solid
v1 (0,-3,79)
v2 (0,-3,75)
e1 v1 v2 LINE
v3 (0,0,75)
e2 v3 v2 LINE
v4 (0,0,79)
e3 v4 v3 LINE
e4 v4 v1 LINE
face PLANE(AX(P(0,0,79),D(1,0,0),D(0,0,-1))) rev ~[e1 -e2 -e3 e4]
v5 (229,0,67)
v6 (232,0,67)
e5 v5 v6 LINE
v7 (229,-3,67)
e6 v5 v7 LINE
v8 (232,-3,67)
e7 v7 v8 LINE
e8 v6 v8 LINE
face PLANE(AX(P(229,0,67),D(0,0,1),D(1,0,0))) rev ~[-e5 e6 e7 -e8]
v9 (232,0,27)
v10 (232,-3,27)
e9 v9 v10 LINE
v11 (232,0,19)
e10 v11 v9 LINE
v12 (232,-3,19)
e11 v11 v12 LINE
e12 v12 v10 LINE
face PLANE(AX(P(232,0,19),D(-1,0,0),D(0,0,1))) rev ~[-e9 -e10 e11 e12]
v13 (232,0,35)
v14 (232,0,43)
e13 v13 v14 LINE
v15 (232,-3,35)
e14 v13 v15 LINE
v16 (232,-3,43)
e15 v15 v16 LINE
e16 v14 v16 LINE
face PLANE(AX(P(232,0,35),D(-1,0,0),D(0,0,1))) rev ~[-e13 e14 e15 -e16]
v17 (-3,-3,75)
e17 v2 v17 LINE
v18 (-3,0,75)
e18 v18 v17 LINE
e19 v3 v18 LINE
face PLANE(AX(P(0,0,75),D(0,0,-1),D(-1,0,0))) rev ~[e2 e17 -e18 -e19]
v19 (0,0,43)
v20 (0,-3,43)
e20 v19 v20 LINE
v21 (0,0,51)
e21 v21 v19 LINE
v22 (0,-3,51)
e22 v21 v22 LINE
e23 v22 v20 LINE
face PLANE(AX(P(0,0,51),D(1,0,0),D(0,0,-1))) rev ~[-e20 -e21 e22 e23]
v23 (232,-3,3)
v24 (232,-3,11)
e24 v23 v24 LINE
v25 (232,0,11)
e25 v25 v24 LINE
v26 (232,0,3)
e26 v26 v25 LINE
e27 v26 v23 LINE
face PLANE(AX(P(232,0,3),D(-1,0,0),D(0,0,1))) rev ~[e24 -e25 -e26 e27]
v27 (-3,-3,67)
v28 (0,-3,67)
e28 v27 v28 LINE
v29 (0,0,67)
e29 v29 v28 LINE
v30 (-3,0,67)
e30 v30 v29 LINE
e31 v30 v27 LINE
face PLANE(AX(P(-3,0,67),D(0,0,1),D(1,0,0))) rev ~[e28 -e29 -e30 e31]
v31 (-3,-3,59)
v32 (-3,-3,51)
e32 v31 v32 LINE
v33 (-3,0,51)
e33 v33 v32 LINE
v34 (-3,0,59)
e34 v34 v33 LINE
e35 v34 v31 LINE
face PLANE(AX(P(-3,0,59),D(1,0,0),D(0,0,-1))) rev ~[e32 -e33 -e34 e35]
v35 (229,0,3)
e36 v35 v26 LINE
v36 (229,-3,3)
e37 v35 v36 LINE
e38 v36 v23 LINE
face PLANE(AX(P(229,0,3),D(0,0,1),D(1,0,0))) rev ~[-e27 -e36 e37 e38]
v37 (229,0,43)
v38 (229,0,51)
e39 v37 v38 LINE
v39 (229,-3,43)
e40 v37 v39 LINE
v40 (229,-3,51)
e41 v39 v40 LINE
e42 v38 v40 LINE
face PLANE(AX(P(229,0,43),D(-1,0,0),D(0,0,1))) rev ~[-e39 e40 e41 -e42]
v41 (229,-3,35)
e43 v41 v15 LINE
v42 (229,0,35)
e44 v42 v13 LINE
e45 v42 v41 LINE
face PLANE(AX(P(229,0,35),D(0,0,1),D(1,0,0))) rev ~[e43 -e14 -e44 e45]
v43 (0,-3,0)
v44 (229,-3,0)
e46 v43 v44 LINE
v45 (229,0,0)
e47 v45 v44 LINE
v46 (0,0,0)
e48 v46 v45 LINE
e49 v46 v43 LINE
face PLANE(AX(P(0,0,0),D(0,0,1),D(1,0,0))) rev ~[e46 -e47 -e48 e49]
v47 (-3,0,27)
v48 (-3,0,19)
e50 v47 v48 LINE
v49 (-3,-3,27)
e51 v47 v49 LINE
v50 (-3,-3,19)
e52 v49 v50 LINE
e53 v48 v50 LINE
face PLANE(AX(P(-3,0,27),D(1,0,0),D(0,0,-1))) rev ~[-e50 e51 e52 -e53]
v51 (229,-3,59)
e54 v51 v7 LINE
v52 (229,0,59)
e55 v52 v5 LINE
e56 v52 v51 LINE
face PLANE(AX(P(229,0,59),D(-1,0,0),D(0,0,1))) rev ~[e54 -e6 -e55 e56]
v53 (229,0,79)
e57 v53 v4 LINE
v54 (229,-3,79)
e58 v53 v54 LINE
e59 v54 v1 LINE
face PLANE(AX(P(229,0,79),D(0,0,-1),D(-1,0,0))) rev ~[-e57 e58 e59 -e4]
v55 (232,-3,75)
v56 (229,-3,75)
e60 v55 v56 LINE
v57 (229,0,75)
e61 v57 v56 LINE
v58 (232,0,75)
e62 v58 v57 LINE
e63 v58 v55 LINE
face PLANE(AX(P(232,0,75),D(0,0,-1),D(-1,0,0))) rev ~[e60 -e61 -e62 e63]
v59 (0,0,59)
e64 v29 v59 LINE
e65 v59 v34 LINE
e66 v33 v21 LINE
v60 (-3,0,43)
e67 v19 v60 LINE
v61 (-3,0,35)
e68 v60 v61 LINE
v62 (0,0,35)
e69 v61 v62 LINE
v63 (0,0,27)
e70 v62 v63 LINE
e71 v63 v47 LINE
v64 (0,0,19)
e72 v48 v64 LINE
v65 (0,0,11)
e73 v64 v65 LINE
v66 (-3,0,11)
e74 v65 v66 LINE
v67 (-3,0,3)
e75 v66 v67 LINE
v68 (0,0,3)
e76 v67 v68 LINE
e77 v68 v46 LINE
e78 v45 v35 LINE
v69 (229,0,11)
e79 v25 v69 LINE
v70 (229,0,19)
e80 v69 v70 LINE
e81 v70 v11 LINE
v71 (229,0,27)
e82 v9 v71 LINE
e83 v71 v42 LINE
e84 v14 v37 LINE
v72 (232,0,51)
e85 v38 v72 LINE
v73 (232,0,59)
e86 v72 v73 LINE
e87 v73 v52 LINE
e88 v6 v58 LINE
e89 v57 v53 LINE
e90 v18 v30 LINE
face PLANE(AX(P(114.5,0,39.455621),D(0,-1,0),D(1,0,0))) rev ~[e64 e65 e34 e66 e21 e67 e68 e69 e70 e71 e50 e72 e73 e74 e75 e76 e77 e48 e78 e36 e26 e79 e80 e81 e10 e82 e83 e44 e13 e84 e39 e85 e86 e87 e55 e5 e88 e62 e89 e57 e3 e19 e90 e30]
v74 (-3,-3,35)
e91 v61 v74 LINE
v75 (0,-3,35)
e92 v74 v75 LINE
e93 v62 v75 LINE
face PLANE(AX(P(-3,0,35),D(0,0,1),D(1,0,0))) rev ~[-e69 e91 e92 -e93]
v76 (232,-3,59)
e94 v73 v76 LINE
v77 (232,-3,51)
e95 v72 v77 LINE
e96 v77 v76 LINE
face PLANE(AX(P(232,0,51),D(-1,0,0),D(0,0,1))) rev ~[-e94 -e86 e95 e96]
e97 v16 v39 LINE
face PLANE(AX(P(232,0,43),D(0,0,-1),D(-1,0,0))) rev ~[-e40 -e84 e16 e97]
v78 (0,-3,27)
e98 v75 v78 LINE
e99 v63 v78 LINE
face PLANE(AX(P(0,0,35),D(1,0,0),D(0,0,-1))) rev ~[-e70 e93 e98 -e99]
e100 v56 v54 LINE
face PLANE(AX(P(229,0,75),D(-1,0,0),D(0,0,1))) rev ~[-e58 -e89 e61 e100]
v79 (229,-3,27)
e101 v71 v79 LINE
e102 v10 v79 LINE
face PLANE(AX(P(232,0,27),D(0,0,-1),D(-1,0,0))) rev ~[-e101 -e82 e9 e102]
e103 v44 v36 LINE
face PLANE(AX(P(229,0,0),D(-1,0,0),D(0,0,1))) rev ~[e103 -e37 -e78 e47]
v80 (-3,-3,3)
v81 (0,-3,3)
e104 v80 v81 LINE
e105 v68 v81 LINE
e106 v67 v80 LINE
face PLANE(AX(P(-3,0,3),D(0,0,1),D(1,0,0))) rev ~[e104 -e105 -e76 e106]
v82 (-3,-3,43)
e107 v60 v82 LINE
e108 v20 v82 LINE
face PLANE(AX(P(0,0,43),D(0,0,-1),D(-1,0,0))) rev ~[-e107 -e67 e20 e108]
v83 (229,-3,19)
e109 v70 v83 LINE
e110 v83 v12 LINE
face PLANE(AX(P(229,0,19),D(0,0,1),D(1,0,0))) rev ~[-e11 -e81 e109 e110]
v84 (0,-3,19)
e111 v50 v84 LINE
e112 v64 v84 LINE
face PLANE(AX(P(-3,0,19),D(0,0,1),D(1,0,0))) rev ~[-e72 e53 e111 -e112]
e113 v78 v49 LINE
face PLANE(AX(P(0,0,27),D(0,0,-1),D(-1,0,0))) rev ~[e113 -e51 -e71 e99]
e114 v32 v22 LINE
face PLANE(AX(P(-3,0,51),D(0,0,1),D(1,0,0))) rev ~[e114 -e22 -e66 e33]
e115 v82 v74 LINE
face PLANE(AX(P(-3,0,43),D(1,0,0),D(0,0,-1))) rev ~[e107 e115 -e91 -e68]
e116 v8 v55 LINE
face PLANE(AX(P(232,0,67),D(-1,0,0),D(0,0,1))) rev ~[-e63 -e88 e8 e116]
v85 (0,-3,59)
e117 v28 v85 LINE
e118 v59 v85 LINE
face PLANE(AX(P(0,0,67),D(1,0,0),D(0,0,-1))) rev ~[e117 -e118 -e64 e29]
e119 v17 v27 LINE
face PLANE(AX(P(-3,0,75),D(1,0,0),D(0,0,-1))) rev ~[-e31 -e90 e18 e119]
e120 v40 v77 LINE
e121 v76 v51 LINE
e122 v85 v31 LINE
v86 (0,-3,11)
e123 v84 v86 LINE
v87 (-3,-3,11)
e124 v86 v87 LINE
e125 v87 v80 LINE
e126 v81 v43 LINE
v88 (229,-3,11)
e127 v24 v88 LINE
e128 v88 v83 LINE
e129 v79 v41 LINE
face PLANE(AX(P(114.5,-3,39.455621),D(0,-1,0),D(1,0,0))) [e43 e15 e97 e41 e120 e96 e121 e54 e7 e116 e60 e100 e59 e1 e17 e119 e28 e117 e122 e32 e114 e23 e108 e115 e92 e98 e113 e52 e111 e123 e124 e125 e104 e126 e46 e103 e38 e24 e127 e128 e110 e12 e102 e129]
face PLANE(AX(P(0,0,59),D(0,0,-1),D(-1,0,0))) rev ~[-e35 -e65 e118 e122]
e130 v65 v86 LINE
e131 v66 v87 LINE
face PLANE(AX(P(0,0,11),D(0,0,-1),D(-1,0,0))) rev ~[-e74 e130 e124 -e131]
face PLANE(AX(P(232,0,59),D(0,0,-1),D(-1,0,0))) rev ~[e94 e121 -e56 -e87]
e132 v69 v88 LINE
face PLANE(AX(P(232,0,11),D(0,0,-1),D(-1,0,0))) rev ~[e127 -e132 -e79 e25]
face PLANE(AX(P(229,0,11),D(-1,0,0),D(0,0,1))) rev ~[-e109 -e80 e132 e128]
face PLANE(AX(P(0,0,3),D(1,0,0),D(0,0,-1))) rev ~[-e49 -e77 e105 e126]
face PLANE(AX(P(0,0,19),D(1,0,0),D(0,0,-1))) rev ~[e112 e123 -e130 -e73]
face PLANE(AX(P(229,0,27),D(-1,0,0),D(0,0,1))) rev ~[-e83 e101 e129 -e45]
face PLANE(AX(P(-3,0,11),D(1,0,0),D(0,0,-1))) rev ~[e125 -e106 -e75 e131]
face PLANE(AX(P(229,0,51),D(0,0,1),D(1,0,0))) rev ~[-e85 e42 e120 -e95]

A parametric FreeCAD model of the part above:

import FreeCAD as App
import Part
import Sketcher

V = App.Vector
Q = App.Units.Quantity

doc = App.newDocument("Part")
body = doc.addObject("PartDesign::Body", "Body")

# Sketch on XZ plane
sketch1 = body.newObject("Sketcher::SketchObject", "Sketch")
sketch1.AttachmentSupport = (doc.getObject("XZ_Plane"), [""])
sketch1.MapMode = "FlatFace"
sketch1.addGeometry([
    Part.LineSegment(V(0, 3, 0), V(0, 0, 0)),  # 0
    Part.LineSegment(V(0, 0, 0), V(229, 0, 0)),  # 1
    Part.LineSegment(V(229, 0, 0), V(229, 3, 0)),  # 2
    Part.LineSegment(V(229, 3, 0), V(232, 3, 0)),  # 3
    Part.LineSegment(V(232, 3, 0), V(232, 11, 0)),  # 4
    Part.LineSegment(V(232, 11, 0), V(229, 11, 0)),  # 5
    Part.LineSegment(V(229, 11, 0), V(229, 19, 0)),  # 6
    Part.LineSegment(V(229, 19, 0), V(232, 19, 0)),  # 7
    Part.LineSegment(V(232, 19, 0), V(232, 27, 0)),  # 8
    Part.LineSegment(V(232, 27, 0), V(229, 27, 0)),  # 9
    Part.LineSegment(V(229, 27, 0), V(229, 35, 0)),  # 10
    Part.LineSegment(V(229, 35, 0), V(232, 35, 0)),  # 11
    Part.LineSegment(V(232, 35, 0), V(232, 43, 0)),  # 12
    Part.LineSegment(V(232, 43, 0), V(229, 43, 0)),  # 13
    Part.LineSegment(V(229, 43, 0), V(229, 51, 0)),  # 14
    Part.LineSegment(V(229, 51, 0), V(232, 51, 0)),  # 15
    Part.LineSegment(V(232, 51, 0), V(232, 59, 0)),  # 16
    Part.LineSegment(V(232, 59, 0), V(229, 59, 0)),  # 17
    Part.LineSegment(V(229, 59, 0), V(229, 67, 0)),  # 18
    Part.LineSegment(V(229, 67, 0), V(232, 67, 0)),  # 19
    Part.LineSegment(V(232, 67, 0), V(232, 75, 0)),  # 20
    Part.LineSegment(V(232, 75, 0), V(229, 75, 0)),  # 21
    Part.LineSegment(V(229, 75, 0), V(229, 79, 0)),  # 22
    Part.LineSegment(V(229, 79, 0), V(0, 79, 0)),  # 23
    Part.LineSegment(V(0, 79, 0), V(0, 75, 0)),  # 24
    Part.LineSegment(V(0, 75, 0), V(-3, 75, 0)),  # 25
    Part.LineSegment(V(-3, 75, 0), V(-3, 67, 0)),  # 26
    Part.LineSegment(V(-3, 67, 0), V(0, 67, 0)),  # 27
    Part.LineSegment(V(0, 67, 0), V(0, 59, 0)),  # 28
    Part.LineSegment(V(0, 59, 0), V(-3, 59, 0)),  # 29
    Part.LineSegment(V(-3, 59, 0), V(-3, 51, 0)),  # 30
    Part.LineSegment(V(-3, 51, 0), V(0, 51, 0)),  # 31
    Part.LineSegment(V(0, 51, 0), V(0, 43, 0)),  # 32
    Part.LineSegment(V(0, 43, 0), V(-3, 43, 0)),  # 33
    Part.LineSegment(V(-3, 43, 0), V(-3, 35, 0)),  # 34
    Part.LineSegment(V(-3, 35, 0), V(0, 35, 0)),  # 35
    Part.LineSegment(V(0, 35, 0), V(0, 27, 0)),  # 36
    Part.LineSegment(V(0, 27, 0), V(-3, 27, 0)),  # 37
    Part.LineSegment(V(-3, 27, 0), V(-3, 19, 0)),  # 38
    Part.LineSegment(V(-3, 19, 0), V(0, 19, 0)),  # 39
    Part.LineSegment(V(0, 19, 0), V(0, 11, 0)),  # 40
    Part.LineSegment(V(0, 11, 0), V(-3, 11, 0)),  # 41
    Part.LineSegment(V(-3, 11, 0), V(-3, 3, 0)),  # 42
    Part.LineSegment(V(-3, 3, 0), V(0, 3, 0)),  # 43
], False)
sketch1.addConstraint([
    Sketcher.Constraint("Coincident", 0, 2, 1, 1),
    Sketcher.Constraint("Coincident", 1, 2, 2, 1),
    Sketcher.Constraint("Coincident", 2, 2, 3, 1),
    Sketcher.Constraint("Coincident", 3, 2, 4, 1),
    Sketcher.Constraint("Coincident", 4, 2, 5, 1),
    Sketcher.Constraint("Coincident", 5, 2, 6, 1),
    Sketcher.Constraint("Coincident", 6, 2, 7, 1),
    Sketcher.Constraint("Coincident", 7, 2, 8, 1),
    Sketcher.Constraint("Coincident", 8, 2, 9, 1),
    Sketcher.Constraint("Coincident", 9, 2, 10, 1),
    Sketcher.Constraint("Coincident", 10, 2, 11, 1),
    Sketcher.Constraint("Coincident", 11, 2, 12, 1),
    Sketcher.Constraint("Coincident", 12, 2, 13, 1),
    Sketcher.Constraint("Coincident", 13, 2, 14, 1),
    Sketcher.Constraint("Coincident", 14, 2, 15, 1),
    Sketcher.Constraint("Coincident", 15, 2, 16, 1),
    Sketcher.Constraint("Coincident", 16, 2, 17, 1),
    Sketcher.Constraint("Coincident", 17, 2, 18, 1),
    Sketcher.Constraint("Coincident", 18, 2, 19, 1),
    Sketcher.Constraint("Coincident", 19, 2, 20, 1),
    Sketcher.Constraint("Coincident", 20, 2, 21, 1),
    Sketcher.Constraint("Coincident", 21, 2, 22, 1),
    Sketcher.Constraint("Coincident", 22, 2, 23, 1),
    Sketcher.Constraint("Coincident", 23, 2, 24, 1),
    Sketcher.Constraint("Coincident", 24, 2, 25, 1),
    Sketcher.Constraint("Coincident", 25, 2, 26, 1),
    Sketcher.Constraint("Coincident", 26, 2, 27, 1),
    Sketcher.Constraint("Coincident", 27, 2, 28, 1),
    Sketcher.Constraint("Coincident", 28, 2, 29, 1),
    Sketcher.Constraint("Coincident", 29, 2, 30, 1),
    Sketcher.Constraint("Coincident", 30, 2, 31, 1),
    Sketcher.Constraint("Coincident", 31, 2, 32, 1),
    Sketcher.Constraint("Coincident", 32, 2, 33, 1),
    Sketcher.Constraint("Coincident", 33, 2, 34, 1),
    Sketcher.Constraint("Coincident", 34, 2, 35, 1),
    Sketcher.Constraint("Coincident", 35, 2, 36, 1),
    Sketcher.Constraint("Coincident", 36, 2, 37, 1),
    Sketcher.Constraint("Coincident", 37, 2, 38, 1),
    Sketcher.Constraint("Coincident", 38, 2, 39, 1),
    Sketcher.Constraint("Coincident", 39, 2, 40, 1),
    Sketcher.Constraint("Coincident", 40, 2, 41, 1),
    Sketcher.Constraint("Coincident", 41, 2, 42, 1),
    Sketcher.Constraint("Coincident", 42, 2, 43, 1),
    Sketcher.Constraint("Coincident", 43, 2, 0, 1),
    Sketcher.Constraint("Vertical", 0),
    Sketcher.Constraint("Horizontal", 1),
    Sketcher.Constraint("Vertical", 2),
    Sketcher.Constraint("Horizontal", 3),
    Sketcher.Constraint("Vertical", 4),
    Sketcher.Constraint("Horizontal", 5),
    Sketcher.Constraint("Vertical", 6),
    Sketcher.Constraint("Horizontal", 7),
    Sketcher.Constraint("Vertical", 8),
    Sketcher.Constraint("Horizontal", 9),
    Sketcher.Constraint("Vertical", 10),
    Sketcher.Constraint("Horizontal", 11),
    Sketcher.Constraint("Vertical", 12),
    Sketcher.Constraint("Horizontal", 13),
    Sketcher.Constraint("Vertical", 14),
    Sketcher.Constraint("Horizontal", 15),
    Sketcher.Constraint("Vertical", 16),
    Sketcher.Constraint("Horizontal", 17),
    Sketcher.Constraint("Vertical", 18),
    Sketcher.Constraint("Horizontal", 19),
    Sketcher.Constraint("Vertical", 20),
    Sketcher.Constraint("Horizontal", 21),
    Sketcher.Constraint("Vertical", 22),
    Sketcher.Constraint("Horizontal", 23),
    Sketcher.Constraint("Vertical", 24),
    Sketcher.Constraint("Horizontal", 25),
    Sketcher.Constraint("Vertical", 26),
    Sketcher.Constraint("Horizontal", 27),
    Sketcher.Constraint("Vertical", 28),
    Sketcher.Constraint("Horizontal", 29),
    Sketcher.Constraint("Vertical", 30),
    Sketcher.Constraint("Horizontal", 31),
    Sketcher.Constraint("Vertical", 32),
    Sketcher.Constraint("Horizontal", 33),
    Sketcher.Constraint("Vertical", 34),
    Sketcher.Constraint("Horizontal", 35),
    Sketcher.Constraint("Vertical", 36),
    Sketcher.Constraint("Horizontal", 37),
    Sketcher.Constraint("Vertical", 38),
    Sketcher.Constraint("Horizontal", 39),
    Sketcher.Constraint("Vertical", 40),
    Sketcher.Constraint("Horizontal", 41),
    Sketcher.Constraint("Vertical", 42),
    Sketcher.Constraint("Horizontal", 43),
    Sketcher.Constraint("Coincident", 0, 2, -1, 1),
    Sketcher.Constraint("PointOnObject", 23, 2, -2),
    Sketcher.Constraint("PointOnObject", 27, 2, -2),
    Sketcher.Constraint("PointOnObject", 31, 2, -2),
    Sketcher.Constraint("PointOnObject", 35, 2, -2),
    Sketcher.Constraint("PointOnObject", 39, 2, -2),
    Sketcher.Constraint("Horizontal", 21, 2, 24, 2),
    Sketcher.Constraint("Horizontal", 19, 2, 26, 2),
    Sketcher.Constraint("Horizontal", 17, 2, 28, 2),
    Sketcher.Constraint("Horizontal", 15, 2, 30, 2),
    Sketcher.Constraint("Horizontal", 13, 2, 32, 2),
    Sketcher.Constraint("Horizontal", 11, 2, 34, 2),
    Sketcher.Constraint("Horizontal", 9, 2, 36, 2),
    Sketcher.Constraint("Horizontal", 7, 2, 38, 2),
    Sketcher.Constraint("Horizontal", 5, 2, 40, 2),
    Sketcher.Constraint("Horizontal", 3, 2, 42, 2),
    Sketcher.Constraint("Vertical", 2, 2, 5, 2),
    Sketcher.Constraint("Vertical", 4, 2, 7, 2),
    Sketcher.Constraint("Vertical", 6, 2, 9, 2),
    Sketcher.Constraint("Vertical", 8, 2, 11, 2),
    Sketcher.Constraint("Vertical", 10, 2, 13, 2),
    Sketcher.Constraint("Vertical", 12, 2, 15, 2),
    Sketcher.Constraint("Vertical", 14, 2, 17, 2),
    Sketcher.Constraint("Vertical", 16, 2, 19, 2),
    Sketcher.Constraint("Vertical", 18, 2, 21, 2),
    Sketcher.Constraint("Vertical", 26, 2, 29, 2),
    Sketcher.Constraint("Vertical", 30, 2, 33, 2),
    Sketcher.Constraint("Vertical", 34, 2, 37, 2),
    Sketcher.Constraint("Vertical", 38, 2, 41, 2),
    Sketcher.Constraint("Equal", 21, 25),
    Sketcher.Constraint("Equal", 43, 0),
    Sketcher.Constraint("Equal", 4, 6),
    Sketcher.Constraint("Equal", 6, 8),
    Sketcher.Constraint("Equal", 8, 10),
    Sketcher.Constraint("Equal", 10, 12),
    Sketcher.Constraint("Equal", 12, 14),
    Sketcher.Constraint("Equal", 14, 16),
    Sketcher.Constraint("Equal", 16, 18),
    Sketcher.Constraint("Equal", 18, 20),
    Sketcher.Constraint("DistanceX", 1, 1, 1, 2, Q("229 mm")),
    Sketcher.Constraint("DistanceX", 3, 1, 3, 2, Q("3 mm")),
    Sketcher.Constraint("DistanceY", 4, 1, 4, 2, Q("8 mm")),
    Sketcher.Constraint("DistanceY", 22, 1, 22, 2, Q("4 mm")),
])
pad1 = body.newObject("PartDesign::Pad", "Pad")
pad1.Profile = sketch1
pad1.Length = 3

doc.recompute()
